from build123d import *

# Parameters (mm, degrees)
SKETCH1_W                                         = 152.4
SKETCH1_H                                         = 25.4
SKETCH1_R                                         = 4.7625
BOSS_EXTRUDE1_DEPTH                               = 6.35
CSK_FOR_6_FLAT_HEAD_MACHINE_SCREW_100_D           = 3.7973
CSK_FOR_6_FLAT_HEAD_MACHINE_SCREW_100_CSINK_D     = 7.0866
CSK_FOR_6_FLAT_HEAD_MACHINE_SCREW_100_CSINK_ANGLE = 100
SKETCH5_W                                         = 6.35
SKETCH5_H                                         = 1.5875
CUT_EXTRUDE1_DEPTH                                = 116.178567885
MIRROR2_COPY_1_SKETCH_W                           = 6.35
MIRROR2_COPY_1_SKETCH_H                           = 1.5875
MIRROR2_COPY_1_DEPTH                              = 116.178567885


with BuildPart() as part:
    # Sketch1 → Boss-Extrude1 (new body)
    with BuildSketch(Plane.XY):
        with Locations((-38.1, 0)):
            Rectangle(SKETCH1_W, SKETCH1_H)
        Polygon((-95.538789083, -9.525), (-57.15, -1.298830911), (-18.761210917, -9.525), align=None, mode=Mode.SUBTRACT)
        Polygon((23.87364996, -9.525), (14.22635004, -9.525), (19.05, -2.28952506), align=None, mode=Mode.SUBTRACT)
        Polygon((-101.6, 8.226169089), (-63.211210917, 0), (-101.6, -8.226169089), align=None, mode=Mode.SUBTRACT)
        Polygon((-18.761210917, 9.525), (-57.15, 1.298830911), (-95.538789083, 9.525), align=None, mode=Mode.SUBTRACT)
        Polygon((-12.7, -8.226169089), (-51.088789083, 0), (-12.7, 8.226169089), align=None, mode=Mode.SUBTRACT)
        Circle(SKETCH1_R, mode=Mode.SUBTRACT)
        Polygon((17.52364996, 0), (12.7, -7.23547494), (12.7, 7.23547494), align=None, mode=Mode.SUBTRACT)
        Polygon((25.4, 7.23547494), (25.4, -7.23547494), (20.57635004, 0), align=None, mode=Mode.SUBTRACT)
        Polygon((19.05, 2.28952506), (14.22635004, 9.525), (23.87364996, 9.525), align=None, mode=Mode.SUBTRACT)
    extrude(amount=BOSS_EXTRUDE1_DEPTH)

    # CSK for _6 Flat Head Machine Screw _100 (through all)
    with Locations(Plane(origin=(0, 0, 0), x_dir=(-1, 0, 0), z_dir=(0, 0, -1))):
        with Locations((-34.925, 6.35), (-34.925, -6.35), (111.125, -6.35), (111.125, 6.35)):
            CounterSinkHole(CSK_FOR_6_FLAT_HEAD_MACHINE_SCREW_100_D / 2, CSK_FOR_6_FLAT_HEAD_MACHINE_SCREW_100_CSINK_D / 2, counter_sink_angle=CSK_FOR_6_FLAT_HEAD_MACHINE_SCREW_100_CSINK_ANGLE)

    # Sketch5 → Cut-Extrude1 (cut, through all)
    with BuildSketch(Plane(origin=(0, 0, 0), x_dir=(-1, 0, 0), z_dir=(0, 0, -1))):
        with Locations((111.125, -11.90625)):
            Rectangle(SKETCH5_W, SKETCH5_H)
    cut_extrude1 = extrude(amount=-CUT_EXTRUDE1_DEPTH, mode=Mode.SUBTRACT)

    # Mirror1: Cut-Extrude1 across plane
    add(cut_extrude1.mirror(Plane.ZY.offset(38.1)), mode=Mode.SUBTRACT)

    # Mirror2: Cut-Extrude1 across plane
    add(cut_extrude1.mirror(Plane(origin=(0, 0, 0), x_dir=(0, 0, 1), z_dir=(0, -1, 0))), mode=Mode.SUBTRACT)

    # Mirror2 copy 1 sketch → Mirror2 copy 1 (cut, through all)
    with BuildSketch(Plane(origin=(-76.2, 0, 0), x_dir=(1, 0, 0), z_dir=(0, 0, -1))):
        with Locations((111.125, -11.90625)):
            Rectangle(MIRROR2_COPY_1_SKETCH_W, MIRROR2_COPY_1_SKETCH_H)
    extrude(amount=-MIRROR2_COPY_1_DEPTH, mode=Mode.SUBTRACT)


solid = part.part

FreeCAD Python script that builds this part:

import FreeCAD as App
import Part
import Sketcher
Q = App.Units.Quantity

doc = App.newDocument("Part")
body = doc.addObject("PartDesign::Body", "Body")

sketch1 = doc.addObject("Sketcher::SketchObject", "Sketch")
body.addObject(sketch1)
sketch1.AttachmentSupport = (doc.XY_Plane, [""])
sketch1.MapMode = "FlatFace"
sketch1.addGeometry([
    Part.LineSegment(App.Vector(-114.3, 12.7, 0), App.Vector(-114.3, -12.7, 0)),
    Part.LineSegment(App.Vector(-114.3, -12.7, 0), App.Vector(38.1, -12.7, 0)),
    Part.LineSegment(App.Vector(38.1, -12.7, 0), App.Vector(38.1, 12.7, 0)),
    Part.LineSegment(App.Vector(38.1, 12.7, 0), App.Vector(-114.3, 12.7, 0)),
    Part.LineSegment(App.Vector(-18.8, -9.5, 0), App.Vector(-95.5, -9.5, 0)),
    Part.LineSegment(App.Vector(-95.5, -9.5, 0), App.Vector(-57.1, -1.3, 0)),
    Part.LineSegment(App.Vector(-57.1, -1.3, 0), App.Vector(-18.8, -9.5, 0)),
    Part.LineSegment(App.Vector(-101.6, -8.2, 0), App.Vector(-101.6, 8.2, 0)),
    Part.LineSegment(App.Vector(-101.6, 8.2, 0), App.Vector(-63.2, 0, 0)),
    Part.LineSegment(App.Vector(-63.2, 0, 0), App.Vector(-101.6, -8.2, 0)),
    Part.LineSegment(App.Vector(19.1, -2.3, 0), App.Vector(23.9, -9.5, 0)),
    Part.LineSegment(App.Vector(23.9, -9.5, 0), App.Vector(14.2, -9.5, 0)),
    Part.LineSegment(App.Vector(14.2, -9.5, 0), App.Vector(19.1, -2.3, 0)),
    Part.LineSegment(App.Vector(-95.5, 9.5, 0), App.Vector(-18.8, 9.5, 0)),
    Part.LineSegment(App.Vector(-18.8, 9.5, 0), App.Vector(-57.1, 1.3, 0)),
    Part.LineSegment(App.Vector(-57.1, 1.3, 0), App.Vector(-95.5, 9.5, 0)),
    Part.LineSegment(App.Vector(-12.7, 8.2, 0), App.Vector(-12.7, -8.2, 0)),
    Part.LineSegment(App.Vector(-12.7, -8.2, 0), App.Vector(-51.1, 0, 0)),
    Part.LineSegment(App.Vector(-51.1, 0, 0), App.Vector(-12.7, 8.2, 0)),
    Part.Circle(App.Vector(0, 0, 0), App.Vector(0, 0, 1), 4.8),
    Part.LineSegment(App.Vector(12.7, 7.2, 0), App.Vector(17.5, 0, 0)),
    Part.LineSegment(App.Vector(17.5, 0, 0), App.Vector(12.7, -7.2, 0)),
    Part.LineSegment(App.Vector(12.7, -7.2, 0), App.Vector(12.7, 7.2, 0)),
    Part.LineSegment(App.Vector(20.6, 0, 0), App.Vector(25.4, 7.2, 0)),
    Part.LineSegment(App.Vector(25.4, 7.2, 0), App.Vector(25.4, -7.2, 0)),
    Part.LineSegment(App.Vector(25.4, -7.2, 0), App.Vector(20.6, 0, 0)),
    Part.LineSegment(App.Vector(23.9, 9.5, 0), App.Vector(19.1, 2.3, 0)),
    Part.LineSegment(App.Vector(19.1, 2.3, 0), App.Vector(14.2, 9.5, 0)),
    Part.LineSegment(App.Vector(14.2, 9.5, 0), App.Vector(23.9, 9.5, 0)),
], False)
sketch1.addConstraint([
    Sketcher.Constraint("Coincident", 0, 2, 1, 1),
    Sketcher.Constraint("Coincident", 1, 2, 2, 1),
    Sketcher.Constraint("Coincident", 2, 2, 3, 1),
    Sketcher.Constraint("Coincident", 3, 2, 0, 1),
    Sketcher.Constraint("Coincident", 4, 2, 5, 1),
    Sketcher.Constraint("Coincident", 5, 2, 6, 1),
    Sketcher.Constraint("Coincident", 6, 2, 4, 1),
    Sketcher.Constraint("Coincident", 7, 2, 8, 1),
    Sketcher.Constraint("Coincident", 8, 2, 9, 1),
    Sketcher.Constraint("Coincident", 9, 2, 7, 1),
    Sketcher.Constraint("Coincident", 10, 2, 11, 1),
    Sketcher.Constraint("Coincident", 11, 2, 12, 1),
    Sketcher.Constraint("Coincident", 12, 2, 10, 1),
    Sketcher.Constraint("Coincident", 13, 2, 14, 1),
    Sketcher.Constraint("Coincident", 14, 2, 15, 1),
    Sketcher.Constraint("Coincident", 15, 2, 13, 1),
    Sketcher.Constraint("Coincident", 16, 2, 17, 1),
    Sketcher.Constraint("Coincident", 17, 2, 18, 1),
    Sketcher.Constraint("Coincident", 18, 2, 16, 1),
    Sketcher.Constraint("Coincident", 20, 2, 21, 1),
    Sketcher.Constraint("Coincident", 21, 2, 22, 1),
    Sketcher.Constraint("Coincident", 22, 2, 20, 1),
    Sketcher.Constraint("Coincident", 23, 2, 24, 1),
    Sketcher.Constraint("Coincident", 24, 2, 25, 1),
    Sketcher.Constraint("Coincident", 25, 2, 23, 1),
    Sketcher.Constraint("Coincident", 26, 2, 27, 1),
    Sketcher.Constraint("Coincident", 27, 2, 28, 1),
    Sketcher.Constraint("Coincident", 28, 2, 26, 1),
    Sketcher.Constraint("Vertical", 0),
    Sketcher.Constraint("Horizontal", 1),
    Sketcher.Constraint("Vertical", 2),
    Sketcher.Constraint("Horizontal", 3),
    Sketcher.Constraint("Horizontal", 4),
    Sketcher.Constraint("Vertical", 7),
    Sketcher.Constraint("Horizontal", 11),
    Sketcher.Constraint("Horizontal", 13),
    Sketcher.Constraint("Vertical", 16),
    Sketcher.Constraint("Vertical", 22),
    Sketcher.Constraint("Vertical", 24),
    Sketcher.Constraint("Horizontal", 28),
    Sketcher.Constraint("Coincident", 19, 3, -1, 1),
    Sketcher.Constraint("Symmetric", 6, 2, 13, 2, -1),
    Sketcher.Constraint("Symmetric", 5, 2, 14, 2, -1),
    Sketcher.Constraint("Symmetric", 12, 2, 26, 2, -1),
    Sketcher.Constraint("Symmetric", 11, 2, 27, 2, -1),
    Sketcher.Constraint("PointOnObject", 8, 2, -1),
    Sketcher.Constraint("PointOnObject", 17, 2, -1),
    Sketcher.Constraint("PointOnObject", 20, 2, -1),
    Sketcher.Constraint("PointOnObject", 25, 2, -1),
    Sketcher.Constraint("Parallel", 6, 8),
    Sketcher.Constraint("Parallel", 5, 9),
    Sketcher.Constraint("Parallel", 9, 14),
    Sketcher.Constraint("Parallel", 8, 15),
    Sketcher.Constraint("Parallel", 15, 17),
    Sketcher.Constraint("Parallel", 14, 18),
    Sketcher.Constraint("Parallel", 10, 20),
    Sketcher.Constraint("Parallel", 12, 21),
    Sketcher.Constraint("Parallel", 21, 23),
    Sketcher.Constraint("Parallel", 20, 25),
    Sketcher.Constraint("Parallel", 23, 26),
    Sketcher.Constraint("Parallel", 25, 27),
    Sketcher.Constraint("Horizontal", 6, 2, 10, 2),
    Sketcher.Constraint("Horizontal", 9, 2, 16, 2),
    Sketcher.Constraint("Horizontal", 22, 2, 23, 2),
    Sketcher.Constraint("Equal", 6, 8),
    Sketcher.Constraint("Equal", 12, 20),
    Sketcher.Constraint("DistanceX", 1, 1, 1, 2, Q("6 in")),
    Sketcher.Constraint("DistanceY", 0, 2, 0, 1, Q("1 in")),
    Sketcher.Constraint("Diameter", 19, Q("0.375 in")),
    Sketcher.Constraint("DistanceX", 7, 2, -1, 1, Q("4 in")),
    Sketcher.Constraint("DistanceX", -1, 1, 23, 2, Q("1 in")),
    Sketcher.Constraint("DistanceX", 0, 2, -1, 1, Q("4.5 in")),
    Sketcher.Constraint("DistanceY", 0, 2, -1, 1, Q("0.5 in")),
    Sketcher.Constraint("DistanceX", 16, 2, -1, 1, Q("0.5 in")),
    Sketcher.Constraint("DistanceX", -1, 1, 21, 2, Q("0.5 in")),
    Sketcher.Constraint("DistanceX", 5, 2, -1, 1, Q("2.25 in")),
    Sketcher.Constraint("DistanceX", -1, 1, 12, 2, Q("0.75 in")),
    Sketcher.Constraint("DistanceY", 6, 2, 13, 2, Q("0.75 in")),
    Sketcher.Constraint("DistanceX", 11, 2, 11, 1, 9.6473),
    Sketcher.Constraint("DistanceX", 4, 2, 4, 1, 76.777578),
    Sketcher.Constraint("DistanceY", 7, 1, 7, 2, 16.452338),
    Sketcher.Constraint("DistanceY", 22, 1, 22, 2, 14.47095),
])
pad1 = doc.addObject("PartDesign::Pad", "Pad")
body.addObject(pad1)
pad1.Profile = sketch1
pad1.Length = Q("0.25 in")

sketch2 = doc.addObject("Sketcher::SketchObject", "Sketch001")
body.addObject(sketch2)
sketch2.AttachmentSupport = (doc.XY_Plane, [""])
sketch2.MapMode = "FlatFace"
sketch2.addGeometry([
    Part.Circle(App.Vector(34.9, 6.3, 0), App.Vector(0, 0, 1), 1.9),
    Part.Circle(App.Vector(34.9, -6.3, 0), App.Vector(0, 0, 1), 1.9),
    Part.Circle(App.Vector(-111.1, -6.3, 0), App.Vector(0, 0, 1), 1.9),
    Part.Circle(App.Vector(-111.1, 6.3, 0), App.Vector(0, 0, 1), 1.9),
], False)
sketch2.addConstraint([
    Sketcher.Constraint("Equal", 0, 1),
    Sketcher.Constraint("Equal", 1, 2),
    Sketcher.Constraint("Equal", 2, 3),
    Sketcher.Constraint("Symmetric", 0, 3, 1, 3, -1),
    Sketcher.Constraint("Symmetric", 2, 3, 3, 3, -1),
    Sketcher.Constraint("Horizontal", 1, 3, 2, 3),
    Sketcher.Constraint("Diameter", 0, Q("0.1495 in")),
    Sketcher.Constraint("DistanceY", 1, 3, 0, 3, Q("0.5 in")),
    Sketcher.Constraint("DistanceX", 2, 3, 1, 3, Q("5.75 in")),
    Sketcher.Constraint("DistanceX", -1, 1, 0, 3, Q("1.375 in")),
])
doc.recompute()
hole = doc.addObject("PartDesign::Hole", "Hole")
body.addObject(hole)
hole.Profile = sketch2
hole.ThreadType = "None"
hole.Diameter = Q("0.1495 in")
hole.DepthType = "ThroughAll"
hole.HoleCutType = "Countersink"
hole.HoleCutDiameter = Q("0.279 in")
hole.HoleCutCountersinkAngle = 100
hole.Reversed = True

sketch3 = doc.addObject("Sketcher::SketchObject", "Sketch002")
body.addObject(sketch3)
sketch3.AttachmentSupport = (doc.XY_Plane, [""])
sketch3.MapMode = "FlatFace"
sketch3.addGeometry([
    Part.LineSegment(App.Vector(-108, -11.1, 0), App.Vector(-108, -12.7, 0)),
    Part.LineSegment(App.Vector(-108, -12.7, 0), App.Vector(-114.3, -12.7, 0)),
    Part.LineSegment(App.Vector(-114.3, -12.7, 0), App.Vector(-114.3, -11.1, 0)),
    Part.LineSegment(App.Vector(-114.3, -11.1, 0), App.Vector(-108, -11.1, 0)),
], False)
sketch3.addConstraint([
    Sketcher.Constraint("Coincident", 0, 2, 1, 1),
    Sketcher.Constraint("Coincident", 1, 2, 2, 1),
    Sketcher.Constraint("Coincident", 2, 2, 3, 1),
    Sketcher.Constraint("Coincident", 3, 2, 0, 1),
    Sketcher.Constraint("Vertical", 0),
    Sketcher.Constraint("Horizontal", 1),
    Sketcher.Constraint("Vertical", 2),
    Sketcher.Constraint("Horizontal", 3),
    Sketcher.Constraint("DistanceX", 1, 2, 1, 1, Q("0.25 in")),
    Sketcher.Constraint("DistanceY", 0, 2, -1, 1, Q("0.5 in")),
    Sketcher.Constraint("DistanceX", 1, 2, -1, 1, Q("4.5 in")),
    Sketcher.Constraint("DistanceY", 0, 2, 0, 1, Q("0.0625 in")),
])
pocket1 = doc.addObject("PartDesign::Pocket", "Pocket")
body.addObject(pocket1)
pocket1.Profile = sketch3
pocket1.Type = "ThroughAll"
pocket1.Reversed = True
doc.recompute()

datumplane = doc.addObject("PartDesign::Plane", "DatumPlane")
body.addObject(datumplane)
datumplane.AttachmentSupport = (doc.YZ_Plane, [""])
datumplane.MapMode = "FlatFace"
datumplane.AttachmentOffset = App.Placement(App.Vector(0, 0, -1.5 * 25.4), App.Rotation())
mirrored = doc.addObject("PartDesign::Mirrored", "Mirrored")
body.addObject(mirrored)
mirrored.Originals = [pocket1]
mirrored.MirrorPlane = (datumplane, [""])
body.Tip = mirrored
doc.recompute()

mirrored2 = doc.addObject("PartDesign::Mirrored", "Mirrored001")
body.addObject(mirrored2)
mirrored2.Originals = [pocket1]
mirrored2.MirrorPlane = (doc.XZ_Plane, [""])
body.Tip = mirrored2

sketch4 = doc.addObject("Sketcher::SketchObject", "Sketch003")
body.addObject(sketch4)
sketch4.AttachmentSupport = (doc.XY_Plane, [""])
sketch4.MapMode = "FlatFace"
sketch4.addGeometry([
    Part.LineSegment(App.Vector(31.8, 11.1, 0), App.Vector(31.8, 12.7, 0)),
    Part.LineSegment(App.Vector(31.8, 12.7, 0), App.Vector(38.1, 12.7, 0)),
    Part.LineSegment(App.Vector(38.1, 12.7, 0), App.Vector(38.1, 11.1, 0)),
    Part.LineSegment(App.Vector(38.1, 11.1, 0), App.Vector(31.8, 11.1, 0)),
], False)
sketch4.addConstraint([
    Sketcher.Constraint("Coincident", 0, 2, 1, 1),
    Sketcher.Constraint("Coincident", 1, 2, 2, 1),
    Sketcher.Constraint("Coincident", 2, 2, 3, 1),
    Sketcher.Constraint("Coincident", 3, 2, 0, 1),
    Sketcher.Constraint("Vertical", 0),
    Sketcher.Constraint("Horizontal", 1),
    Sketcher.Constraint("Vertical", 2),
    Sketcher.Constraint("Horizontal", 3),
    Sketcher.Constraint("DistanceX", 1, 1, 1, 2, Q("0.25 in")),
    Sketcher.Constraint("DistanceY", -1, 1, 0, 2, Q("0.5 in")),
    Sketcher.Constraint("DistanceX", -1, 1, 1, 2, Q("1.5 in")),
    Sketcher.Constraint("DistanceY", 0, 1, 0, 2, Q("0.0625 in")),
])
pocket2 = doc.addObject("PartDesign::Pocket", "Pocket001")
body.addObject(pocket2)
pocket2.Profile = sketch4
pocket2.Type = "ThroughAll"
pocket2.Reversed = True

doc.recompute()
